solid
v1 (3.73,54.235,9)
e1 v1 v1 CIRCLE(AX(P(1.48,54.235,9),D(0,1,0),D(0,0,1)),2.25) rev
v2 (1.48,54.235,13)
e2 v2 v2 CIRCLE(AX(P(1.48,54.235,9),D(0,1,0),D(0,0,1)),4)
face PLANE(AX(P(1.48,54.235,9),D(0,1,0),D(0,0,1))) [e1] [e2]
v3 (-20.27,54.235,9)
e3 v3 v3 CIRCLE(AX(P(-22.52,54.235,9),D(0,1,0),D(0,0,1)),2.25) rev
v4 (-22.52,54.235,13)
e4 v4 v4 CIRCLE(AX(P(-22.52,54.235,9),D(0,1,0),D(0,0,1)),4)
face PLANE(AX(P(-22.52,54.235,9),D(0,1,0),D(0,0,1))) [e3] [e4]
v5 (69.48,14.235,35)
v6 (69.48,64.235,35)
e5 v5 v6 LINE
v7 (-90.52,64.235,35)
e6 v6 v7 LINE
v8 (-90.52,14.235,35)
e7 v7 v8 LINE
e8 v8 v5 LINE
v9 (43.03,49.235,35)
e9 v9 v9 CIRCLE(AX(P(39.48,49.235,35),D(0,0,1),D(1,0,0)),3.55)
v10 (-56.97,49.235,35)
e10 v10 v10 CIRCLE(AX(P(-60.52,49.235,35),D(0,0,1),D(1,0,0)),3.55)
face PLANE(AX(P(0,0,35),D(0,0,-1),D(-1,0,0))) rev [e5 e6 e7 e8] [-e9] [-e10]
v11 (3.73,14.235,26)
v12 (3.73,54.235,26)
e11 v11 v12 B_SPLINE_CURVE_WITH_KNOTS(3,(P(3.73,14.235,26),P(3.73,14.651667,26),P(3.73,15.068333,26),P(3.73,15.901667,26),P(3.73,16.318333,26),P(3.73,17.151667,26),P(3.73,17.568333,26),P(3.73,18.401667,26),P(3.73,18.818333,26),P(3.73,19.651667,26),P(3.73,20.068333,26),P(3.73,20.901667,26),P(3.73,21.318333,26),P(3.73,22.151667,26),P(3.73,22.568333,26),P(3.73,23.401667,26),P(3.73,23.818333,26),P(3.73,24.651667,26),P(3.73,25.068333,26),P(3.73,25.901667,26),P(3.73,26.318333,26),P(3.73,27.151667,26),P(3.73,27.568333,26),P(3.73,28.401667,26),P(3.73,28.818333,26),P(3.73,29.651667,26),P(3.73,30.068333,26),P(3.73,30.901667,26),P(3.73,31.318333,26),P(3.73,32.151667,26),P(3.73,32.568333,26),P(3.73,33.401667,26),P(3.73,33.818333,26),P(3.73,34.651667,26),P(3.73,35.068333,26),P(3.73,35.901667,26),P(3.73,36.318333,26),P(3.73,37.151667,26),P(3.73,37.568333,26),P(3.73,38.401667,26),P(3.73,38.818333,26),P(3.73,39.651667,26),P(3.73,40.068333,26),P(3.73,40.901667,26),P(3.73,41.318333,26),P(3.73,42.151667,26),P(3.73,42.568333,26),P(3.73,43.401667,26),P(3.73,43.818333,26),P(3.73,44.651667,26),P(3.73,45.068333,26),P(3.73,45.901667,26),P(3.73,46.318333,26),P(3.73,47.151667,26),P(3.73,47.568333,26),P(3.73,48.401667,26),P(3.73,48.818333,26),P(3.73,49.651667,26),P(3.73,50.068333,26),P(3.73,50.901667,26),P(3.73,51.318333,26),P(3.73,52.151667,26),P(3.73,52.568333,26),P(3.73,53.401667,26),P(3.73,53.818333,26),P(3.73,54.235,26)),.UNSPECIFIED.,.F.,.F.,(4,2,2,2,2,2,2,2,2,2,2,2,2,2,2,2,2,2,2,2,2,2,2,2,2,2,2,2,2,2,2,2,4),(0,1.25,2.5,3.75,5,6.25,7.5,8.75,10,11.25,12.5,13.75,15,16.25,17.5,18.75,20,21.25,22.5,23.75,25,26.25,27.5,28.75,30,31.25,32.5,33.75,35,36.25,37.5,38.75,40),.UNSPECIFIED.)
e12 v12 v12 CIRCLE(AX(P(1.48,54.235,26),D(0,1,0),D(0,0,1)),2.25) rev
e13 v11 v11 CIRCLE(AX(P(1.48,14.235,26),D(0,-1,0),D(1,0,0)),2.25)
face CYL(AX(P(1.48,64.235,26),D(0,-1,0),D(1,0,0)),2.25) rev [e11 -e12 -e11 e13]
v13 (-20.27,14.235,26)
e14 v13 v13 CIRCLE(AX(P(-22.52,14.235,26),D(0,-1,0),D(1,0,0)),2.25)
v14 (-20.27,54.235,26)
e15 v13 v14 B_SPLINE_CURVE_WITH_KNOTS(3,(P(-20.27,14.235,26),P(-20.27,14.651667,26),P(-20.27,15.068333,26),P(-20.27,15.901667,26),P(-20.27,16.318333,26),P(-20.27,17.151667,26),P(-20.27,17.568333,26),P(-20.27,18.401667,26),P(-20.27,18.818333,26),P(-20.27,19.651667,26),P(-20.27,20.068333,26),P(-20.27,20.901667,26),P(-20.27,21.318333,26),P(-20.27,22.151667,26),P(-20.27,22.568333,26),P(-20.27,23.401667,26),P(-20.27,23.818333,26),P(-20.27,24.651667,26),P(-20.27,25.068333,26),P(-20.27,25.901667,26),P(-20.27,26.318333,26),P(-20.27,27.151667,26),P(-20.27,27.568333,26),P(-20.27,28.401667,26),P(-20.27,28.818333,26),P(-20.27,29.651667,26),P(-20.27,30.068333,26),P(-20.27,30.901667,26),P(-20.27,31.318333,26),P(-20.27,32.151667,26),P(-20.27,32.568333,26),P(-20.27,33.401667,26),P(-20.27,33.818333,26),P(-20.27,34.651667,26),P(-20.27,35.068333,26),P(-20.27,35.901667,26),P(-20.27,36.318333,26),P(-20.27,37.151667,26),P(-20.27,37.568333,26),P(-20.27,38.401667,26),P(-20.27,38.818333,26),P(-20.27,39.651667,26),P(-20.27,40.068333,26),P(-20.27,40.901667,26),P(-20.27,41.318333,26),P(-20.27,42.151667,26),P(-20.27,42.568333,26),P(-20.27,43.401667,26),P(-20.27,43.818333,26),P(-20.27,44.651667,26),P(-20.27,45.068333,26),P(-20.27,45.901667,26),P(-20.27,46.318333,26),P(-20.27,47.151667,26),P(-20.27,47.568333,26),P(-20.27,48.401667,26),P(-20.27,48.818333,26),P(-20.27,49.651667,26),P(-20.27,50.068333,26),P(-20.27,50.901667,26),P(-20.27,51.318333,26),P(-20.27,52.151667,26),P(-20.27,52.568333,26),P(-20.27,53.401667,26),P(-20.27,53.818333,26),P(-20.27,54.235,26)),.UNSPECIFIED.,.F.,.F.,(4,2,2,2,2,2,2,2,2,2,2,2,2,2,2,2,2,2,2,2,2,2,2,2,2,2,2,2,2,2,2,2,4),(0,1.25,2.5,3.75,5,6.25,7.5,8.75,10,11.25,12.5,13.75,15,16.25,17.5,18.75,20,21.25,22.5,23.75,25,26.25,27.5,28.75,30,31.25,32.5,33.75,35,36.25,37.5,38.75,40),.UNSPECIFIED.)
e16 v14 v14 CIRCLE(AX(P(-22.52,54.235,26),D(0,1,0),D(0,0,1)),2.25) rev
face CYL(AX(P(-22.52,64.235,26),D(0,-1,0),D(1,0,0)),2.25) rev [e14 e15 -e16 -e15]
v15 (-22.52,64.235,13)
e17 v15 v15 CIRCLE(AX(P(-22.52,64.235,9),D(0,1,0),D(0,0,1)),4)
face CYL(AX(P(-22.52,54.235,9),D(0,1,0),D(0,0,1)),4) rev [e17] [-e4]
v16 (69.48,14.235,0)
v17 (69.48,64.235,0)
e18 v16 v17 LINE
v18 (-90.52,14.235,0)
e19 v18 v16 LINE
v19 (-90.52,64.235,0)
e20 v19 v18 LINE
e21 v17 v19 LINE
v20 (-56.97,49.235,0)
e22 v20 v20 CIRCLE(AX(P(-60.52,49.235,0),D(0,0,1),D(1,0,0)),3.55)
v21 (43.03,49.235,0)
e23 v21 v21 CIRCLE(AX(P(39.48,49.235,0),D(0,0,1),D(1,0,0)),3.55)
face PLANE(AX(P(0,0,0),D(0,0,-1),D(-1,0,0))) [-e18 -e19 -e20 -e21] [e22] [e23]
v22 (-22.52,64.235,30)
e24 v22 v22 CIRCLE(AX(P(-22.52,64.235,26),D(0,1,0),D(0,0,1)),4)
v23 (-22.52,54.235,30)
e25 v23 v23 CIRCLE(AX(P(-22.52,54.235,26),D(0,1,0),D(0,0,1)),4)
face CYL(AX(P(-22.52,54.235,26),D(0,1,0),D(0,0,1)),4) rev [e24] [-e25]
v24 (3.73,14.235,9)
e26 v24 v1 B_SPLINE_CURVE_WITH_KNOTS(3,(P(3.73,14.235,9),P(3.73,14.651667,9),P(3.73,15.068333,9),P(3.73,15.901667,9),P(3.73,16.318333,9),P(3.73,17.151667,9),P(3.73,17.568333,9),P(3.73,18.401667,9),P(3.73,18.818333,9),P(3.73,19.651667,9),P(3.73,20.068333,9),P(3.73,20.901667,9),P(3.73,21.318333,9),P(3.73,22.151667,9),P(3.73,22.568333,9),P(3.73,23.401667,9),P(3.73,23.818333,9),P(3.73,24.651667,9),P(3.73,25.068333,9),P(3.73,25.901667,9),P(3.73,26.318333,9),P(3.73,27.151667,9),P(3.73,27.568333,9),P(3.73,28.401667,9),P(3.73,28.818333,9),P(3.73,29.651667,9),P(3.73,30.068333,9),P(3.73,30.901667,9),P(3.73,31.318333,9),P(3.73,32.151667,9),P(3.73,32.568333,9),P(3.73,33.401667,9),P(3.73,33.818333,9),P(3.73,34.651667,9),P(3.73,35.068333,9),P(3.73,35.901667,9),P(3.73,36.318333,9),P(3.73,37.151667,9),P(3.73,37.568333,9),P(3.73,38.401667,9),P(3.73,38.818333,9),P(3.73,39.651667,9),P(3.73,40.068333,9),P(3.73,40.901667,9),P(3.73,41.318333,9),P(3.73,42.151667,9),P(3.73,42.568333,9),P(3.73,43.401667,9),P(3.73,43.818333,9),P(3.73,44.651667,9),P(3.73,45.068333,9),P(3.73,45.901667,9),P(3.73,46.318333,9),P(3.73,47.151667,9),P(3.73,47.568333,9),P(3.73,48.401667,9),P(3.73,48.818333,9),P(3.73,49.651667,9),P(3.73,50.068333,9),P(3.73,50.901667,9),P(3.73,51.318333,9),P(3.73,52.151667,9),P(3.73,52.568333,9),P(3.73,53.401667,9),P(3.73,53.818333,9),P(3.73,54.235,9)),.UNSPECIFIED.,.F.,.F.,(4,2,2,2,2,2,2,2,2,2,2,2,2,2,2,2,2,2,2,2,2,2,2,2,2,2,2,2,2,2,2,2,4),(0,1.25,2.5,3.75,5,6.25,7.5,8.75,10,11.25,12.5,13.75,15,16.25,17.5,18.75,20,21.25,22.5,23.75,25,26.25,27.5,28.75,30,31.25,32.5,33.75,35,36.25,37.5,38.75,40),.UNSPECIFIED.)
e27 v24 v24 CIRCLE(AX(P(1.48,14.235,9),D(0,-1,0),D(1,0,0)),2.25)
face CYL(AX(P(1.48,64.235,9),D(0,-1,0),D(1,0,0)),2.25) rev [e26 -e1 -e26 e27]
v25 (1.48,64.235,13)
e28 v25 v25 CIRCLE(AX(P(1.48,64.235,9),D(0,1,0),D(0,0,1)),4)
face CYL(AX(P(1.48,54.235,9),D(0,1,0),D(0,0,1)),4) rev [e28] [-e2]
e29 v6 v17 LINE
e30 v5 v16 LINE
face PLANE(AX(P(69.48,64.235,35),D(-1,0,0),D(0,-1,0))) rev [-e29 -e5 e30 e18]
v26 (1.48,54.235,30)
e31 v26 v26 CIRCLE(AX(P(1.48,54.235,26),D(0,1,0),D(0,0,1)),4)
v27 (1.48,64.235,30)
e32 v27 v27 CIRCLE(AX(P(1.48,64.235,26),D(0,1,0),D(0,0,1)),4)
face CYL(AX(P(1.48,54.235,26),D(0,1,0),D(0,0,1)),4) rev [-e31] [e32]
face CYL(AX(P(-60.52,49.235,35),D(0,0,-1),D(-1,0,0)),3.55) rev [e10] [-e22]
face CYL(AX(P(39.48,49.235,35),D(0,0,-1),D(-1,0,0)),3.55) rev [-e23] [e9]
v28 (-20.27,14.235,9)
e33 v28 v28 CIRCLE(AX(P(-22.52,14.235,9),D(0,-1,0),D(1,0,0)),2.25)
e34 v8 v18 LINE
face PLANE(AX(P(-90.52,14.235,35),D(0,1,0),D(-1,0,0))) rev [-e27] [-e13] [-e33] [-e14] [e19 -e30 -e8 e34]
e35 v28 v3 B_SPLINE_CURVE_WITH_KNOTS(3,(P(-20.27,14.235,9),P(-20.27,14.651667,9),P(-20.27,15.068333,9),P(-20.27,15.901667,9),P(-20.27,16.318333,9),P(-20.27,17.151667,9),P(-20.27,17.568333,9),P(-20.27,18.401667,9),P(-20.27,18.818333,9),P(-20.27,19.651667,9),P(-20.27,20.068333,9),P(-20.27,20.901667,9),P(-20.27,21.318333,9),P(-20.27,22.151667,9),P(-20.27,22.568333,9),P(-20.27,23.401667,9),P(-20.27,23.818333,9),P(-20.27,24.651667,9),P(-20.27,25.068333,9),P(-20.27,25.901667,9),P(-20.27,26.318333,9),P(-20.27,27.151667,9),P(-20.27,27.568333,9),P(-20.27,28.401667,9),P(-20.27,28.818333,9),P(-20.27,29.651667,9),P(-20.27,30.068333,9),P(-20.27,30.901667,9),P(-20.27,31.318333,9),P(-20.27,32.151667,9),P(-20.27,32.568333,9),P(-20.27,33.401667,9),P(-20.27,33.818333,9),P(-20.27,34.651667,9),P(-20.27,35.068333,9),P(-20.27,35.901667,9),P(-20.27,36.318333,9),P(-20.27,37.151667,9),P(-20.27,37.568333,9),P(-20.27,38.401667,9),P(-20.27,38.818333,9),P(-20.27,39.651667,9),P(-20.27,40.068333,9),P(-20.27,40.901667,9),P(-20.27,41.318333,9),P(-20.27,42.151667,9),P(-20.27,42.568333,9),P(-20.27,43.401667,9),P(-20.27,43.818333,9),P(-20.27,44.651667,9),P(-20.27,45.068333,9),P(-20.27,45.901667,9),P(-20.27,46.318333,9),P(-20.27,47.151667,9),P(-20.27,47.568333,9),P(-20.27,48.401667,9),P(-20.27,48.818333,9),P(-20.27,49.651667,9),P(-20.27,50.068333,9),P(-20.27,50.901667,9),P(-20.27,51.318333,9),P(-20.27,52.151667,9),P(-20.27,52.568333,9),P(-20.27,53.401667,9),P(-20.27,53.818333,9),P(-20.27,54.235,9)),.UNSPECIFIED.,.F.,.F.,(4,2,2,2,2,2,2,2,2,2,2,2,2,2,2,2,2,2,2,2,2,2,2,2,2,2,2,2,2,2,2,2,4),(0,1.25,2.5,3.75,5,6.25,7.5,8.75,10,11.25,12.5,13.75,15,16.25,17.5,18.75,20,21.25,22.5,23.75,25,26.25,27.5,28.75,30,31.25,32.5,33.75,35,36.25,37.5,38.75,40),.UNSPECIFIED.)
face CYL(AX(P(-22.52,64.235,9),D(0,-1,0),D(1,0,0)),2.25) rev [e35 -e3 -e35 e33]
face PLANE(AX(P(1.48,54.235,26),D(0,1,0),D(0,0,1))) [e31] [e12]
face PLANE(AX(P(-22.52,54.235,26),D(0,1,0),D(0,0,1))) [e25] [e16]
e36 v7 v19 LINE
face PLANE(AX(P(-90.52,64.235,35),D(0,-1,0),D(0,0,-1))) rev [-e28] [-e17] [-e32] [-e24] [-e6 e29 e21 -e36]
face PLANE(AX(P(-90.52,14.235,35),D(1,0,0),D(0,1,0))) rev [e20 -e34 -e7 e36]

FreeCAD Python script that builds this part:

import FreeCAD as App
import Part
import Sketcher
from FreeCAD import Vector

doc = App.newDocument("Part")
params = doc.addObject("Spreadsheet::Sheet", "Params")
for row, (alias, value) in enumerate([
    ("sketch1_diameter", "7.1 mm"),
    ("sketch1_width", "160 mm"),
    ("sketch1_height", "50 mm"),
    ("pad1_length", "35 mm"),
    ("sketch2_diameter", "4.5 mm"),
    ("sketch3_diameter", "8 mm"),
    ("pocket2_length", "10 mm"),
], start=1):
    params.set(f"A{row}", alias)
    params.set(f"B{row}", "=" + value)
    params.setAlias(f"B{row}", alias)

body = doc.addObject("PartDesign::Body", "Body")

sketch1 = doc.addObject("Sketcher::SketchObject", "Sketch")
body.addObject(sketch1)
sketch1.AttachmentSupport = (doc.XY_Plane, [""])
sketch1.MapMode = "FlatFace"
sketch1.addGeometry([
    Part.LineSegment(Vector(-90.5, 64.2, 0), Vector(-90.5, 14.2, 0)),
    Part.LineSegment(Vector(-90.5, 14.2, 0), Vector(69.5, 14.2, 0)),
    Part.LineSegment(Vector(69.5, 14.2, 0), Vector(69.5, 64.2, 0)),
    Part.LineSegment(Vector(69.5, 64.2, 0), Vector(-90.5, 64.2, 0)),
    Part.Circle(Vector(39.5, 49.2, 0), Vector(0, 0, 1), 3.5),
    Part.Circle(Vector(-60.5, 49.2, 0), Vector(0, 0, 1), 3.5),
], False)
sketch1.addConstraint([
    Sketcher.Constraint("Coincident", 0, 2, 1, 1),
    Sketcher.Constraint("Coincident", 1, 2, 2, 1),
    Sketcher.Constraint("Coincident", 2, 2, 3, 1),
    Sketcher.Constraint("Coincident", 3, 2, 0, 1),
    Sketcher.Constraint("Vertical", 0),
    Sketcher.Constraint("Horizontal", 1),
    Sketcher.Constraint("Vertical", 2),
    Sketcher.Constraint("Horizontal", 3),
    Sketcher.Constraint("Equal", 4, 5),
    Sketcher.Constraint("Horizontal", 4, 3, 5, 3),
    Sketcher.Constraint("Diameter", 4, 7.1),
    Sketcher.Constraint("DistanceX", 1, 1, 1, 2, 160.0),
    Sketcher.Constraint("DistanceY", 0, 2, 0, 1, 50.0),
    Sketcher.Constraint("DistanceX", 5, 3, 4, 3, 100.0),
    Sketcher.Constraint("DistanceX", 0, 2, 5, 3, 30.0),
    Sketcher.Constraint("DistanceY", 0, 2, 5, 3, 35.0),
    Sketcher.Constraint("DistanceX", -1, 1, 4, 3, 39.48),
    Sketcher.Constraint("DistanceY", -1, 1, 4, 3, 49.235),
])
sketch1.setExpression("Constraints[10]", "Params.sketch1_diameter")
sketch1.setExpression("Constraints[11]", "Params.sketch1_width")
sketch1.setExpression("Constraints[12]", "Params.sketch1_height")
pad1 = doc.addObject("PartDesign::Pad", "Pad")
body.addObject(pad1)
pad1.Profile = sketch1
pad1.setExpression("Length", "Params.pad1_length")

sketch2 = doc.addObject("Sketcher::SketchObject", "Sketch001")
body.addObject(sketch2)
sketch2.AttachmentSupport = (doc.XZ_Plane, [""])
sketch2.MapMode = "FlatFace"
sketch2.AttachmentOffset = App.Placement(Vector(0, 0, -14.235), App.Rotation())
sketch2.addGeometry([
    Part.Circle(Vector(-22.5, 26, 0), Vector(0, 0, 1), 2.2),
    Part.Circle(Vector(1.5, 26, 0), Vector(0, 0, 1), 2.2),
    Part.Circle(Vector(-22.5, 9, 0), Vector(0, 0, 1), 2.2),
    Part.Circle(Vector(1.5, 9, 0), Vector(0, 0, 1), 2.2),
], False)
sketch2.addConstraint([
    Sketcher.Constraint("Equal", 0, 1),
    Sketcher.Constraint("Equal", 1, 2),
    Sketcher.Constraint("Equal", 2, 3),
    Sketcher.Constraint("Horizontal", 0, 3, 1, 3),
    Sketcher.Constraint("Horizontal", 2, 3, 3, 3),
    Sketcher.Constraint("Vertical", 0, 3, 2, 3),
    Sketcher.Constraint("Vertical", 1, 3, 3, 3),
    Sketcher.Constraint("Diameter", 0, 4.5),
    Sketcher.Constraint("DistanceY", -1, 1, 0, 3, 26.0),
    Sketcher.Constraint("DistanceY", -1, 1, 2, 3, 9.0),
    Sketcher.Constraint("DistanceX", 0, 3, 1, 3, 24.0),
    Sketcher.Constraint("DistanceX", 0, 3, -1, 1, 22.52),
])
sketch2.setExpression("Constraints[7]", "Params.sketch2_diameter")
pocket1 = doc.addObject("PartDesign::Pocket", "Pocket")
body.addObject(pocket1)
pocket1.Profile = sketch2
pocket1.Type = "ThroughAll"

sketch3 = doc.addObject("Sketcher::SketchObject", "Sketch002")
body.addObject(sketch3)
sketch3.AttachmentSupport = (doc.XZ_Plane, [""])
sketch3.MapMode = "FlatFace"
sketch3.AttachmentOffset = App.Placement(Vector(0, 0, -64.235), App.Rotation())
sketch3.addGeometry([
    Part.Circle(Vector(-22.5, 9, 0), Vector(0, 0, 1), 4),
    Part.Circle(Vector(-22.5, 26, 0), Vector(0, 0, 1), 4),
    Part.Circle(Vector(1.5, 26, 0), Vector(0, 0, 1), 4),
    Part.Circle(Vector(1.5, 9, 0), Vector(0, 0, 1), 4),
], False)
sketch3.addConstraint([
    Sketcher.Constraint("Equal", 0, 1),
    Sketcher.Constraint("Equal", 1, 2),
    Sketcher.Constraint("Equal", 2, 3),
    Sketcher.Constraint("Horizontal", 1, 3, 2, 3),
    Sketcher.Constraint("Horizontal", 0, 3, 3, 3),
    Sketcher.Constraint("Vertical", 0, 3, 1, 3),
    Sketcher.Constraint("Vertical", 2, 3, 3, 3),
    Sketcher.Constraint("Diameter", 0, 8.0),
    Sketcher.Constraint("DistanceY", -1, 1, 0, 3, 9.0),
    Sketcher.Constraint("DistanceY", -1, 1, 1, 3, 26.0),
    Sketcher.Constraint("DistanceX", 1, 3, 2, 3, 24.0),
    Sketcher.Constraint("DistanceX", 0, 3, -1, 1, 22.52),
])
sketch3.setExpression("Constraints[7]", "Params.sketch3_diameter")
pocket2 = doc.addObject("PartDesign::Pocket", "Pocket001")
body.addObject(pocket2)
pocket2.Profile = sketch3
pocket2.setExpression("Length", "Params.pocket2_length")
pocket2.Reversed = True

doc.recompute()
